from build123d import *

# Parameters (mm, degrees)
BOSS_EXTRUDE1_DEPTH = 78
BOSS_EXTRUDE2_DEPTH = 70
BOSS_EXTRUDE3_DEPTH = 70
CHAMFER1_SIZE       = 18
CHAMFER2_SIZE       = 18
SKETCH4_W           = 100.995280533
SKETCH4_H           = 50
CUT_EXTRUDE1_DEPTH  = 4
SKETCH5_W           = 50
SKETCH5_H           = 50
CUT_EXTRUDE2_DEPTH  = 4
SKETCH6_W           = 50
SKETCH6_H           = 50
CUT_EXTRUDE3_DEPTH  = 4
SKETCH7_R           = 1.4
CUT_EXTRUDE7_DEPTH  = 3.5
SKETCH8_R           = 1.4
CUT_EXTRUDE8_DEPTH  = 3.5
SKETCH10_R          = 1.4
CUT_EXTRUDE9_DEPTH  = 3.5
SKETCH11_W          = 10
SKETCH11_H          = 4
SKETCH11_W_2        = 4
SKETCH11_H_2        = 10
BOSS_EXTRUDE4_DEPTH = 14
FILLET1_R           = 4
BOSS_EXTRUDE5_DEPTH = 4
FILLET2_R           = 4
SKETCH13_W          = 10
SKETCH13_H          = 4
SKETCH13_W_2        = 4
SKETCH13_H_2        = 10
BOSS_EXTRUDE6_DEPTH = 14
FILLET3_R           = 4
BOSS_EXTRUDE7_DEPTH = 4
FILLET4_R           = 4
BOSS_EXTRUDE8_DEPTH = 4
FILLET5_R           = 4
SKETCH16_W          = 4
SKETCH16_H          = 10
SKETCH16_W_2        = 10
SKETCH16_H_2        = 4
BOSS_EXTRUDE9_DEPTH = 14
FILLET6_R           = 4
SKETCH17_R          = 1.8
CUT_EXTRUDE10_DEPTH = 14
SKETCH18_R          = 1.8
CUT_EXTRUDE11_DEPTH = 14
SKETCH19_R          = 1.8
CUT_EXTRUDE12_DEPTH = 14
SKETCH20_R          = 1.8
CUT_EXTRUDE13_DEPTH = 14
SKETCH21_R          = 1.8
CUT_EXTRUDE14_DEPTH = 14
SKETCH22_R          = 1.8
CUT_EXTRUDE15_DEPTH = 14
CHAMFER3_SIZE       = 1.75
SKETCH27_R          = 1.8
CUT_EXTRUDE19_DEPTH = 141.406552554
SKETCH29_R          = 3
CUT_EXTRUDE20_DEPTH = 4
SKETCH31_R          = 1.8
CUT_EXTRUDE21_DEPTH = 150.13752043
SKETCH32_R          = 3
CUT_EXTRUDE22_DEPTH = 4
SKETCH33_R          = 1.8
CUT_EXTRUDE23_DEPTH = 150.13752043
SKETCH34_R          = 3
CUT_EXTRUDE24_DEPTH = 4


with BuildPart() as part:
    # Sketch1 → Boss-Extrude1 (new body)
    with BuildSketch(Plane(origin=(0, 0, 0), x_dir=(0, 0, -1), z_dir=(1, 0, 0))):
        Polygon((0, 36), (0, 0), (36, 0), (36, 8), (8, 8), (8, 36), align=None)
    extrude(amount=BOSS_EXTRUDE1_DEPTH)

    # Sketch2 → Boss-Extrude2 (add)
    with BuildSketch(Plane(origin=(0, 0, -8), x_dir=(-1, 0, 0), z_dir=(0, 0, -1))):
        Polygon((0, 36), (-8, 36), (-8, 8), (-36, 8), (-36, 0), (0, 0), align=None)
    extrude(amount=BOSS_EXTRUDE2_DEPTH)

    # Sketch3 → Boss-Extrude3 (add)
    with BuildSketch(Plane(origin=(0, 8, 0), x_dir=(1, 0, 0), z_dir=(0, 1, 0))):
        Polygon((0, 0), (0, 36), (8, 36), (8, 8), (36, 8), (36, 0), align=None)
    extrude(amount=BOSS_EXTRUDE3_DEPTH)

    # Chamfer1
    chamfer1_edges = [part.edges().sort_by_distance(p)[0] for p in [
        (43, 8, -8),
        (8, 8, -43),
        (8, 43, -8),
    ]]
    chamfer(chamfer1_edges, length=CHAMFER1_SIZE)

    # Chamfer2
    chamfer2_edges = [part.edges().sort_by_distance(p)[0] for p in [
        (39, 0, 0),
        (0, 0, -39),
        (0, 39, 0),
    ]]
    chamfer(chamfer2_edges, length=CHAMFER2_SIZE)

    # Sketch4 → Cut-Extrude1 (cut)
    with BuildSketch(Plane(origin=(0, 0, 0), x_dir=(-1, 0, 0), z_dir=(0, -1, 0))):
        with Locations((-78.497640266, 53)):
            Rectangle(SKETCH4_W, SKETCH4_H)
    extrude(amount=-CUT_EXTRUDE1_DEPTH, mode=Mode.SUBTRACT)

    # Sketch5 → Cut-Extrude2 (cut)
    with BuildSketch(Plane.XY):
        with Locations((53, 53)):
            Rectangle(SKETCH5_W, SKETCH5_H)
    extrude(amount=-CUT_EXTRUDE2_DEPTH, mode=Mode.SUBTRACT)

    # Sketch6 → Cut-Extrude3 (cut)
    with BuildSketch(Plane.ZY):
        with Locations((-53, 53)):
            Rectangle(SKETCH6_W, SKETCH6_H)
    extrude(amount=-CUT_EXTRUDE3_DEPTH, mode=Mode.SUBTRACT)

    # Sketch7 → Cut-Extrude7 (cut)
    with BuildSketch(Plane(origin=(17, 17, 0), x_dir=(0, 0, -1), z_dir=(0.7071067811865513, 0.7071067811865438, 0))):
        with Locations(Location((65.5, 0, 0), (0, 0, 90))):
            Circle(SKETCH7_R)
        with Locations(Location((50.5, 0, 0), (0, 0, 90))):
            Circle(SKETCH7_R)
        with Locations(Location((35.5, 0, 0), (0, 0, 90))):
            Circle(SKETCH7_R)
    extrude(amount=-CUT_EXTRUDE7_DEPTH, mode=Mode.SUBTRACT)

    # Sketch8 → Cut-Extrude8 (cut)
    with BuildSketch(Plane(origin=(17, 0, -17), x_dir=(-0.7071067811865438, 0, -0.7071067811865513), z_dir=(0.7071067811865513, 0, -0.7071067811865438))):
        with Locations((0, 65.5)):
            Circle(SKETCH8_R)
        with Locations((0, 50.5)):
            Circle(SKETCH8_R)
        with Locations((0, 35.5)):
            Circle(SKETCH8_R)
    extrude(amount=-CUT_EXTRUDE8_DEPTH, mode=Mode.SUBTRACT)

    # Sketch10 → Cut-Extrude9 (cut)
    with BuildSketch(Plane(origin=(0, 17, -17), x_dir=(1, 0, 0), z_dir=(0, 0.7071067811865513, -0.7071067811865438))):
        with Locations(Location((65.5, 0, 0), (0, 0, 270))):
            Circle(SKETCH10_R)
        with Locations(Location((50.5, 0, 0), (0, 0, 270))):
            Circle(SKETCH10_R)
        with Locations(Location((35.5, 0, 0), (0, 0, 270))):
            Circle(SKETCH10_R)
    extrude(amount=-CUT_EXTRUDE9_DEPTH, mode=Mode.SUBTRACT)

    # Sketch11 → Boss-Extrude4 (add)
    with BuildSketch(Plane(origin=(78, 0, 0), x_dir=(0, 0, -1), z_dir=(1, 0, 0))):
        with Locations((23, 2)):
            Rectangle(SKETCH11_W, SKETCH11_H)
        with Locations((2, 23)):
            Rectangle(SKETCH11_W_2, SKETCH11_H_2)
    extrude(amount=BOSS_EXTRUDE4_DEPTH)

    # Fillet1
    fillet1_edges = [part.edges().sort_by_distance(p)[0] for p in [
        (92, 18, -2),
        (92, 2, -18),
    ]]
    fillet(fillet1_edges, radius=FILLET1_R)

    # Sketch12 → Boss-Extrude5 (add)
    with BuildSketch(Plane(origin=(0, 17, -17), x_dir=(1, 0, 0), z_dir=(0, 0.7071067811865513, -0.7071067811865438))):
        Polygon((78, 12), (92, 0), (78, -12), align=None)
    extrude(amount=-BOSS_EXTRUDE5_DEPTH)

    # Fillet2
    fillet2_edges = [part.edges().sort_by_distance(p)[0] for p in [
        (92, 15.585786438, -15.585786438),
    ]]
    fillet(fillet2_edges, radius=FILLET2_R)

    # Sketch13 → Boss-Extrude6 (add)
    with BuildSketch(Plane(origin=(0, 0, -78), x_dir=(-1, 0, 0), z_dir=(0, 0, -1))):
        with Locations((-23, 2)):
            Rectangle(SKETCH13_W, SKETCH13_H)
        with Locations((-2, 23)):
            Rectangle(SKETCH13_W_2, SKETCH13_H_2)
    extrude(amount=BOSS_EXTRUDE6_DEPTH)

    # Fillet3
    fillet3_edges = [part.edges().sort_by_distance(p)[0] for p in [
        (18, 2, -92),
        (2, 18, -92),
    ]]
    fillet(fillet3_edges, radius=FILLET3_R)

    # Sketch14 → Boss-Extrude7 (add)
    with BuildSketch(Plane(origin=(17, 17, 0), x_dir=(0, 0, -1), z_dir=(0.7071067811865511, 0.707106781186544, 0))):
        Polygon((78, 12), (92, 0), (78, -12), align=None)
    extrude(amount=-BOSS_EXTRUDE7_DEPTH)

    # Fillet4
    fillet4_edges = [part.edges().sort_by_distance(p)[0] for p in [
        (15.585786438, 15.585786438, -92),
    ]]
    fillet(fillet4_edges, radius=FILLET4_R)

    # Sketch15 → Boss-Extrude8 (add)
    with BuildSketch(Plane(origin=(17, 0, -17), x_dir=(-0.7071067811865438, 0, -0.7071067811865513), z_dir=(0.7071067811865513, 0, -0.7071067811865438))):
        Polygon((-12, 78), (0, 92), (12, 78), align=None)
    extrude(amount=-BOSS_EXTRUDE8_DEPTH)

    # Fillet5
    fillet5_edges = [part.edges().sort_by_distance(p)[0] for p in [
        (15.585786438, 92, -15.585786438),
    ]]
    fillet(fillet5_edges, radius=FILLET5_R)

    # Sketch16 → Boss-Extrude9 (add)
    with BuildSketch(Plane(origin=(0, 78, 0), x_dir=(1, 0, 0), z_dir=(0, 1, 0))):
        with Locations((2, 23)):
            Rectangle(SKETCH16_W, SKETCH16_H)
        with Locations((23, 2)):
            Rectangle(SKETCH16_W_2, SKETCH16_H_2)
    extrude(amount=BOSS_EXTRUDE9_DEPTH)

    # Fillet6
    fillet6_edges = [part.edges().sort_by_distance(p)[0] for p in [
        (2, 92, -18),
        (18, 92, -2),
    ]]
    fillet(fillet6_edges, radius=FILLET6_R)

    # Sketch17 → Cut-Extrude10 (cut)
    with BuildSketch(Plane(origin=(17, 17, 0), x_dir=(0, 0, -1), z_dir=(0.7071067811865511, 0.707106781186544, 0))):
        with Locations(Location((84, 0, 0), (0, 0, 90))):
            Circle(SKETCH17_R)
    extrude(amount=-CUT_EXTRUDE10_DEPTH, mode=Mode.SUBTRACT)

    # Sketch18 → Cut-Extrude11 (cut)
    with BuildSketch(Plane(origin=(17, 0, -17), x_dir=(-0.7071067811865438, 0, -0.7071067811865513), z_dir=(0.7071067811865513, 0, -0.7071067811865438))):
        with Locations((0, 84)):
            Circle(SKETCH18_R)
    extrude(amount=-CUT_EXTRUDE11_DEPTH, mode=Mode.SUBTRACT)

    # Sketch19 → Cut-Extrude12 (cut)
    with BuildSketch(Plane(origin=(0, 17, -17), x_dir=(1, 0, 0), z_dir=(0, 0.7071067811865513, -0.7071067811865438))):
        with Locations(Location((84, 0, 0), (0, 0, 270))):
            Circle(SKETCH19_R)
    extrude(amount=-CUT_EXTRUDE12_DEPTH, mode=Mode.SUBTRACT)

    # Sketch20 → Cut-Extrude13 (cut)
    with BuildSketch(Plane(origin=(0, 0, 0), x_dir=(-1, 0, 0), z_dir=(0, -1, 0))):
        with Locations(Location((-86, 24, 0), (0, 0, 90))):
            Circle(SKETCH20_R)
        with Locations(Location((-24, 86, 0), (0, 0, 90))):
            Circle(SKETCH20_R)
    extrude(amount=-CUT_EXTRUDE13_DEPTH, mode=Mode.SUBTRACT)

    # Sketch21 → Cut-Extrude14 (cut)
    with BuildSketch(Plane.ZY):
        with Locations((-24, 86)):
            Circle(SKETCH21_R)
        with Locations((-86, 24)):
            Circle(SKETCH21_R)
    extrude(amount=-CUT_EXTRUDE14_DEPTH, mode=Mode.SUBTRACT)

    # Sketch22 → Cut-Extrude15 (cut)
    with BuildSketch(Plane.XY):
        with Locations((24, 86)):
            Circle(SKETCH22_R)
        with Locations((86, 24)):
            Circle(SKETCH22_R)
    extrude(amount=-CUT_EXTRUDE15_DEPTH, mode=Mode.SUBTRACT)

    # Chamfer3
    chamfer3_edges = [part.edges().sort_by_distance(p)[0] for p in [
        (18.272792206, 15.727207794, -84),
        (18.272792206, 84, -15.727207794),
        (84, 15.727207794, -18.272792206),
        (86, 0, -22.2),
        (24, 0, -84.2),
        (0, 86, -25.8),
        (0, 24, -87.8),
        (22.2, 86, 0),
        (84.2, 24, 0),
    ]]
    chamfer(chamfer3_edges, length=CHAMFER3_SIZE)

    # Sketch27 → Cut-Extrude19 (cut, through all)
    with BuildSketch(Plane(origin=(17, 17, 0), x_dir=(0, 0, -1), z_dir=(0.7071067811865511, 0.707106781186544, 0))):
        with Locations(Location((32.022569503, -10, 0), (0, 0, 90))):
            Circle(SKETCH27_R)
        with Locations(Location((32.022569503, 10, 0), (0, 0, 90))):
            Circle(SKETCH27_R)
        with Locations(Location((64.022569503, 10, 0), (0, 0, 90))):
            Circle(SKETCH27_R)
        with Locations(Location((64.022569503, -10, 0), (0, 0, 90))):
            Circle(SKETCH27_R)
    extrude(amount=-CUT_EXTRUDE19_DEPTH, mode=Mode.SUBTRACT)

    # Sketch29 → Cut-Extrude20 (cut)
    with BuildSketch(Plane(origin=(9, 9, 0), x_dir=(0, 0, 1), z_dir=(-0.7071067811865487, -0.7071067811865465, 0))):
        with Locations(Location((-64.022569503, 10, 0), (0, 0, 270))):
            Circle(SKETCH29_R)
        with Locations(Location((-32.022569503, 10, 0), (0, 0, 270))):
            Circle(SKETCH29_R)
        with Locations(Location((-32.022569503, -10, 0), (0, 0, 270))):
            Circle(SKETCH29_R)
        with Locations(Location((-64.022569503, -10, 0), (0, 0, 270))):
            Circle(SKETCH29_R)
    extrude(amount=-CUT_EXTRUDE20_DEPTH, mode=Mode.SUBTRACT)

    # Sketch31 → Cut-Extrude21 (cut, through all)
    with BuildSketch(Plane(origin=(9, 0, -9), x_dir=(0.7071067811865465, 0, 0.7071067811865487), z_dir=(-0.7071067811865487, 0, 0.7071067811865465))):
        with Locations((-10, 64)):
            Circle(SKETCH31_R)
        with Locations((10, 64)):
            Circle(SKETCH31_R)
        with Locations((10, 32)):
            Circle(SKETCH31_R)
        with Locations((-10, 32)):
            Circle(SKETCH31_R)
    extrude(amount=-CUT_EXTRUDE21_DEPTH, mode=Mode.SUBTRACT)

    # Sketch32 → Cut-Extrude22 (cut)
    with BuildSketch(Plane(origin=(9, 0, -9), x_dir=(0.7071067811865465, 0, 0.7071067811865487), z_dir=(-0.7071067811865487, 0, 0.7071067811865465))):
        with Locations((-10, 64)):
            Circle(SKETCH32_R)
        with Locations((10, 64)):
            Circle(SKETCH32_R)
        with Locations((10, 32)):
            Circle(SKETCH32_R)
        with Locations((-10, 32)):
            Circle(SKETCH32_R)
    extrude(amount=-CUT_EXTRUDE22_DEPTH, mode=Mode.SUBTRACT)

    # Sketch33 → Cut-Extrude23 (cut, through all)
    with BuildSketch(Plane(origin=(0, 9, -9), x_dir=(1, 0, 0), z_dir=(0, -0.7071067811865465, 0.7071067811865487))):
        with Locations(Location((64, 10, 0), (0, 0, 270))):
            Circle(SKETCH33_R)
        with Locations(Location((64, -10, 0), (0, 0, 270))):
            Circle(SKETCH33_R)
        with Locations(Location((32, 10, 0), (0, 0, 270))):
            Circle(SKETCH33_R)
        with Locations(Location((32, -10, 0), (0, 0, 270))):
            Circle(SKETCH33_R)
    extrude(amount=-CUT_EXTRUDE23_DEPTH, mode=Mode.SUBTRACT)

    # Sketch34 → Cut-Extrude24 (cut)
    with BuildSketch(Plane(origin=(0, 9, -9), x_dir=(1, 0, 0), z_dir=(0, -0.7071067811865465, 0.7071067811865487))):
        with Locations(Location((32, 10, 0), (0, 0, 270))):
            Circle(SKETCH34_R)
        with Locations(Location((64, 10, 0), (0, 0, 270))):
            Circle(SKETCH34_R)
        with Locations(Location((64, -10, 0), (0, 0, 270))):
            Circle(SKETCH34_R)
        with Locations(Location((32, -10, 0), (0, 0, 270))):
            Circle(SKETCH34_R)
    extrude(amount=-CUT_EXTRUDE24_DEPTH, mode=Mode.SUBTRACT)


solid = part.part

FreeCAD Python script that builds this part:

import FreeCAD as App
import Part
import Sketcher
Q = App.Units.Quantity


def edges_at(feature, points):
    """Names of the edges that pass closest to the given points."""
    edges = feature.Shape.Edges
    near = lambda p: min(range(len(edges)), key=lambda i: edges[i].distToShape(Part.Vertex(*p))[0])
    return sorted({f"Edge{near(p) + 1}" for p in points})


def add_polygon(sketch, points):
    """Adds a closed chain of lines whose ends are joined by coincident constraints."""
    first, n = sketch.GeometryCount, len(points)
    for a, b in zip(points, points[1:] + points[:1]):
        sketch.addGeometry(Part.LineSegment(App.Vector(*a, 0), App.Vector(*b, 0)), False)
    for i in range(n):
        sketch.addConstraint(Sketcher.Constraint("Coincident", first + i, 2, first + (i + 1) % n, 1))

doc = App.newDocument("Part")
body = doc.addObject("PartDesign::Body", "Body")

sketch1 = body.newObject("Sketcher::SketchObject", "Sketch")
sketch1.AttachmentSupport = (doc.getObject("YZ_Plane"), [""])
sketch1.MapMode = "FlatFace"
add_polygon(sketch1, [(36, 0), (0, 0), (0, -36), (8, -36), (8, -8), (36, -8)])
sketch1.addConstraint([
    Sketcher.Constraint("Horizontal", 0),
    Sketcher.Constraint("Vertical", 1),
    Sketcher.Constraint("Horizontal", 2),
    Sketcher.Constraint("Vertical", 3),
    Sketcher.Constraint("Horizontal", 4),
    Sketcher.Constraint("Vertical", 5),
    Sketcher.Constraint("Coincident", 0, 2, -1, 1),
    Sketcher.Constraint("Equal", 0, 1),
    Sketcher.Constraint("Equal", 4, 3),
    Sketcher.Constraint("DistanceX", 0, 2, 0, 1, Q("36 mm")),
    Sketcher.Constraint("DistanceX", 2, 1, 2, 2, Q("8 mm")),
])
pad1 = body.newObject("PartDesign::Pad", "Pad")
pad1.Profile = sketch1
pad1.Length = 78

sketch2 = body.newObject("Sketcher::SketchObject", "Sketch001")
sketch2.AttachmentSupport = (doc.getObject("XY_Plane"), [""])
sketch2.MapMode = "FlatFace"
sketch2.AttachmentOffset = App.Placement(App.Vector(0, 0, -8), App.Rotation())
add_polygon(sketch2, [(0, 36), (8, 36), (8, 8), (36, 8), (36, 0), (0, 0)])
sketch2.addConstraint([
    Sketcher.Constraint("Horizontal", 0),
    Sketcher.Constraint("Vertical", 1),
    Sketcher.Constraint("Horizontal", 2),
    Sketcher.Constraint("Vertical", 3),
    Sketcher.Constraint("Horizontal", 4),
    Sketcher.Constraint("Vertical", 5),
    Sketcher.Constraint("Coincident", 4, 2, -1, 1),
    Sketcher.Constraint("Equal", 2, 1),
    Sketcher.Constraint("Equal", 0, 3),
    Sketcher.Constraint("DistanceX", 0, 1, 0, 2, Q("8 mm")),
    Sketcher.Constraint("DistanceX", 2, 1, 2, 2, Q("28 mm")),
])
pad2 = body.newObject("PartDesign::Pad", "Pad001")
pad2.Profile = sketch2
pad2.Length = 70
pad2.Reversed = True

sketch3 = body.newObject("Sketcher::SketchObject", "Sketch002")
sketch3.AttachmentSupport = (doc.getObject("XZ_Plane"), [""])
sketch3.MapMode = "FlatFace"
sketch3.AttachmentOffset = App.Placement(App.Vector(0, 0, -8), App.Rotation())
add_polygon(sketch3, [(0, -36), (0, 0), (36, 0), (36, -8), (8, -8), (8, -36)])
sketch3.addConstraint([
    Sketcher.Constraint("Vertical", 0),
    Sketcher.Constraint("Horizontal", 1),
    Sketcher.Constraint("Vertical", 2),
    Sketcher.Constraint("Horizontal", 3),
    Sketcher.Constraint("Vertical", 4),
    Sketcher.Constraint("Horizontal", 5),
    Sketcher.Constraint("Coincident", 0, 2, -1, 1),
    Sketcher.Constraint("Equal", 1, 0),
    Sketcher.Constraint("Equal", 5, 2),
    Sketcher.Constraint("DistanceX", 1, 1, 1, 2, Q("36 mm")),
    Sketcher.Constraint("DistanceX", 3, 2, 3, 1, Q("28 mm")),
])
pad3 = body.newObject("PartDesign::Pad", "Pad002")
pad3.Profile = sketch3
pad3.Length = 70
pad3.Reversed = True
doc.recompute()

chamfer = body.newObject("PartDesign::Chamfer", "Chamfer")
chamfer.Base = (pad3, edges_at(pad3, [(43, 8, -8), (8, 8, -43), (8, 43, -8)]))
chamfer.Size = 18
doc.recompute()

chamfer2 = body.newObject("PartDesign::Chamfer", "Chamfer001")
chamfer2.Base = (chamfer, edges_at(chamfer, [(39, 0, 0), (0, 0, -39), (0, 39, 0)]))
chamfer2.Size = 18

sketch4 = body.newObject("Sketcher::SketchObject", "Sketch003")
sketch4.AttachmentSupport = (doc.getObject("XZ_Plane"), [""])
sketch4.MapMode = "FlatFace"
add_polygon(sketch4, [(129, -78), (129, -28), (28, -28), (28, -78)])
sketch4.addConstraint([
    Sketcher.Constraint("Vertical", 0),
    Sketcher.Constraint("Horizontal", 1),
    Sketcher.Constraint("Vertical", 2),
    Sketcher.Constraint("Horizontal", 3),
    Sketcher.Constraint("DistanceY", 0, 1, 0, 2, Q("50 mm")),
    Sketcher.Constraint("DistanceY", 0, 2, -1, 1, Q("28 mm")),
    Sketcher.Constraint("DistanceX", -1, 1, 1, 2, Q("28 mm")),
    Sketcher.Constraint("DistanceX", 1, 2, 1, 1, Q("100.995281 mm")),
])
pocket1 = body.newObject("PartDesign::Pocket", "Pocket")
pocket1.Profile = sketch4
pocket1.Length = 4

sketch5 = body.newObject("Sketcher::SketchObject", "Sketch004")
sketch5.AttachmentSupport = (doc.getObject("XY_Plane"), [""])
sketch5.MapMode = "FlatFace"
add_polygon(sketch5, [(28, 78), (28, 28), (78, 28), (78, 78)])
sketch5.addConstraint([
    Sketcher.Constraint("Vertical", 0),
    Sketcher.Constraint("Horizontal", 1),
    Sketcher.Constraint("Vertical", 2),
    Sketcher.Constraint("Horizontal", 3),
    Sketcher.Constraint("Equal", 3, 0),
    Sketcher.Constraint("DistanceX", 1, 1, 1, 2, Q("50 mm")),
    Sketcher.Constraint("DistanceX", -1, 1, 0, 2, Q("28 mm")),
    Sketcher.Constraint("DistanceY", -1, 1, 0, 2, Q("28 mm")),
])
pocket2 = body.newObject("PartDesign::Pocket", "Pocket001")
pocket2.Profile = sketch5
pocket2.Length = 4

sketch6 = body.newObject("Sketcher::SketchObject", "Sketch005")
sketch6.AttachmentSupport = (doc.getObject("YZ_Plane"), [""])
sketch6.MapMode = "FlatFace"
add_polygon(sketch6, [(78, -78), (28, -78), (28, -28), (78, -28)])
sketch6.addConstraint([
    Sketcher.Constraint("Horizontal", 0),
    Sketcher.Constraint("Vertical", 1),
    Sketcher.Constraint("Horizontal", 2),
    Sketcher.Constraint("Vertical", 3),
    Sketcher.Constraint("Equal", 2, 1),
    Sketcher.Constraint("DistanceX", 0, 2, 0, 1, Q("50 mm")),
    Sketcher.Constraint("DistanceX", -1, 1, 0, 2, Q("28 mm")),
    Sketcher.Constraint("DistanceY", 0, 2, -1, 1, Q("78 mm")),
])
pocket3 = body.newObject("PartDesign::Pocket", "Pocket002")
pocket3.Profile = sketch6
pocket3.Length = 4
pocket3.Reversed = True

sketch7 = body.newObject("Sketcher::SketchObject", "Sketch006")
sketch7.Placement = App.Placement(App.Vector(17, 17, 0), App.Rotation(App.Vector(0, 0, -1), App.Vector(-0.707106781, 0.707106781, 0), App.Vector(0.707106781, 0.707106781, 0), "ZXY"))
sketch7.addGeometry([
    Part.Circle(App.Vector(65.5, 0, 0), App.Vector(0, 0, 1), 1.4),
    Part.Circle(App.Vector(50.5, 0, 0), App.Vector(0, 0, 1), 1.4),
    Part.Circle(App.Vector(35.5, 0, 0), App.Vector(0, 0, 1), 1.4),
], False)
sketch7.addConstraint([
    Sketcher.Constraint("Equal", 0, 1),
    Sketcher.Constraint("Equal", 1, 2),
    Sketcher.Constraint("PointOnObject", 0, 3, -1),
    Sketcher.Constraint("PointOnObject", 1, 3, -1),
    Sketcher.Constraint("PointOnObject", 2, 3, -1),
    Sketcher.Constraint("Diameter", 0, Q("2.8 mm")),
    Sketcher.Constraint("DistanceX", 1, 3, 0, 3, Q("15 mm")),
    Sketcher.Constraint("DistanceX", 2, 3, 1, 3, Q("15 mm")),
    Sketcher.Constraint("DistanceX", -1, 1, 0, 3, Q("65.5 mm")),
])
pocket4 = body.newObject("PartDesign::Pocket", "Pocket003")
pocket4.Profile = sketch7
pocket4.Length = 3.5

sketch8 = body.newObject("Sketcher::SketchObject", "Sketch007")
sketch8.Placement = App.Placement(App.Vector(17, 0, -17), App.Rotation(App.Vector(-0.707106781, 0, -0.707106781), App.Vector(0, 0.999999999, 0), App.Vector(0.707106781, 0, -0.707106781), "ZXY"))
sketch8.addGeometry([
    Part.Circle(App.Vector(0, 65.5, 0), App.Vector(0, 0, 1), 1.4),
    Part.Circle(App.Vector(0, 50.5, 0), App.Vector(0, 0, 1), 1.4),
    Part.Circle(App.Vector(0, 35.5, 0), App.Vector(0, 0, 1), 1.4),
], False)
sketch8.addConstraint([
    Sketcher.Constraint("Equal", 0, 1),
    Sketcher.Constraint("Equal", 1, 2),
    Sketcher.Constraint("PointOnObject", 0, 3, -2),
    Sketcher.Constraint("PointOnObject", 1, 3, -2),
    Sketcher.Constraint("PointOnObject", 2, 3, -2),
    Sketcher.Constraint("Diameter", 0, Q("2.8 mm")),
    Sketcher.Constraint("DistanceY", 1, 3, 0, 3, Q("15 mm")),
    Sketcher.Constraint("DistanceY", 2, 3, 1, 3, Q("15 mm")),
    Sketcher.Constraint("DistanceY", -1, 1, 0, 3, Q("65.5 mm")),
])
pocket5 = body.newObject("PartDesign::Pocket", "Pocket004")
pocket5.Profile = sketch8
pocket5.Length = 3.5

sketch9 = body.newObject("Sketcher::SketchObject", "Sketch008")
sketch9.Placement = App.Placement(App.Vector(0, 17, -17), App.Rotation(App.Vector(1, 0, 0), App.Vector(0, -0.707106781, -0.707106781), App.Vector(0, 0.707106781, -0.707106781), "ZXY"))
sketch9.addGeometry([
    Part.Circle(App.Vector(65.5, 0, 0), App.Vector(0, 0, 1), 1.4),
    Part.Circle(App.Vector(50.5, 0, 0), App.Vector(0, 0, 1), 1.4),
    Part.Circle(App.Vector(35.5, 0, 0), App.Vector(0, 0, 1), 1.4),
], False)
sketch9.addConstraint([
    Sketcher.Constraint("Equal", 0, 1),
    Sketcher.Constraint("Equal", 1, 2),
    Sketcher.Constraint("PointOnObject", 0, 3, -1),
    Sketcher.Constraint("PointOnObject", 1, 3, -1),
    Sketcher.Constraint("PointOnObject", 2, 3, -1),
    Sketcher.Constraint("Diameter", 0, Q("2.8 mm")),
    Sketcher.Constraint("DistanceX", 1, 3, 0, 3, Q("15 mm")),
    Sketcher.Constraint("DistanceX", 2, 3, 1, 3, Q("15 mm")),
    Sketcher.Constraint("DistanceX", -1, 1, 0, 3, Q("65.5 mm")),
])
pocket6 = body.newObject("PartDesign::Pocket", "Pocket005")
pocket6.Profile = sketch9
pocket6.Length = 3.5

sketch10 = body.newObject("Sketcher::SketchObject", "Sketch009")
sketch10.AttachmentSupport = (doc.getObject("YZ_Plane"), [""])
sketch10.MapMode = "FlatFace"
sketch10.AttachmentOffset = App.Placement(App.Vector(0, 0, 78), App.Rotation())
add_polygon(sketch10, [(4, -18), (0, -18), (0, -28), (4, -28)])
add_polygon(sketch10, [(28, 0), (18, 0), (18, -4), (28, -4)])
sketch10.addConstraint([
    Sketcher.Constraint("Horizontal", 0),
    Sketcher.Constraint("Vertical", 1),
    Sketcher.Constraint("Horizontal", 2),
    Sketcher.Constraint("Vertical", 3),
    Sketcher.Constraint("Horizontal", 4),
    Sketcher.Constraint("Vertical", 5),
    Sketcher.Constraint("Horizontal", 6),
    Sketcher.Constraint("Vertical", 7),
    Sketcher.Constraint("PointOnObject", 0, 2, -2),
    Sketcher.Constraint("PointOnObject", 4, 2, -1),
    Sketcher.Constraint("Equal", 6, 1),
    Sketcher.Constraint("Equal", 2, 5),
    Sketcher.Constraint("DistanceX", 0, 2, 0, 1, Q("4 mm")),
    Sketcher.Constraint("DistanceX", 4, 2, 4, 1, Q("10 mm")),
    Sketcher.Constraint("DistanceY", 0, 2, -1, 1, Q("18 mm")),
    Sketcher.Constraint("DistanceX", -1, 1, 4, 2, Q("18 mm")),
])
pad4 = body.newObject("PartDesign::Pad", "Pad003")
pad4.Profile = sketch10
pad4.Length = 14
doc.recompute()

fillet = body.newObject("PartDesign::Fillet", "Fillet")
fillet.Base = (pad4, edges_at(pad4, [(92, 18, -2), (92, 2, -18)]))
fillet.Radius = 4

sketch11 = body.newObject("Sketcher::SketchObject", "Sketch010")
sketch11.Placement = App.Placement(App.Vector(0, 17, -17), App.Rotation(App.Vector(1, 0, 0), App.Vector(0, -0.707106781, -0.707106781), App.Vector(0, 0.707106781, -0.707106781), "ZXY"))
add_polygon(sketch11, [(92, 0), (78, 12), (78, -12)])
sketch11.addConstraint([
    Sketcher.Constraint("Vertical", 1),
    Sketcher.Constraint("PointOnObject", 2, 2, -1),
    Sketcher.Constraint("Equal", 0, 2),
    Sketcher.Constraint("DistanceY", 1, 2, 1, 1, Q("24 mm")),
    Sketcher.Constraint("DistanceX", -1, 1, 0, 2, Q("78 mm")),
    Sketcher.Constraint("DistanceX", -1, 1, 2, 2, Q("92 mm")),
])
pad5 = body.newObject("PartDesign::Pad", "Pad004")
pad5.Profile = sketch11
pad5.Length = 4
pad5.Reversed = True
doc.recompute()

fillet2 = body.newObject("PartDesign::Fillet", "Fillet001")
fillet2.Base = (pad5, edges_at(pad5, [(92, 15.586, -15.586)]))
fillet2.Radius = 4

sketch12 = body.newObject("Sketcher::SketchObject", "Sketch011")
sketch12.AttachmentSupport = (doc.getObject("XY_Plane"), [""])
sketch12.MapMode = "FlatFace"
sketch12.AttachmentOffset = App.Placement(App.Vector(0, 0, -78), App.Rotation())
add_polygon(sketch12, [(28, 4), (28, 0), (18, 0), (18, 4)])
add_polygon(sketch12, [(4, 28), (4, 18), (0, 18), (0, 28)])
sketch12.addConstraint([
    Sketcher.Constraint("Vertical", 0),
    Sketcher.Constraint("Horizontal", 1),
    Sketcher.Constraint("Vertical", 2),
    Sketcher.Constraint("Horizontal", 3),
    Sketcher.Constraint("Vertical", 4),
    Sketcher.Constraint("Horizontal", 5),
    Sketcher.Constraint("Vertical", 6),
    Sketcher.Constraint("Horizontal", 7),
    Sketcher.Constraint("PointOnObject", 0, 2, -1),
    Sketcher.Constraint("PointOnObject", 5, 2, -2),
    Sketcher.Constraint("Equal", 7, 0),
    Sketcher.Constraint("Equal", 3, 4),
    Sketcher.Constraint("DistanceX", 1, 2, 1, 1, Q("10 mm")),
    Sketcher.Constraint("DistanceX", 5, 2, 5, 1, Q("4 mm")),
    Sketcher.Constraint("DistanceX", -1, 1, 0, 2, Q("28 mm")),
    Sketcher.Constraint("DistanceY", -1, 1, 4, 2, Q("18 mm")),
])
pad6 = body.newObject("PartDesign::Pad", "Pad005")
pad6.Profile = sketch12
pad6.Length = 14
pad6.Reversed = True
doc.recompute()

fillet3 = body.newObject("PartDesign::Fillet", "Fillet002")
fillet3.Base = (pad6, edges_at(pad6, [(18, 2, -92), (2, 18, -92)]))
fillet3.Radius = 4

sketch13 = body.newObject("Sketcher::SketchObject", "Sketch012")
sketch13.Placement = App.Placement(App.Vector(17, 17, 0), App.Rotation(App.Vector(0, 0, -1), App.Vector(-0.707106781, 0.707106781, 0), App.Vector(0.707106781, 0.707106781, 0), "ZXY"))
add_polygon(sketch13, [(92, 0), (78, 12), (78, -12)])
sketch13.addConstraint([
    Sketcher.Constraint("Vertical", 1),
    Sketcher.Constraint("PointOnObject", 2, 2, -1),
    Sketcher.Constraint("Equal", 0, 2),
    Sketcher.Constraint("DistanceY", 1, 2, 1, 1, Q("24 mm")),
    Sketcher.Constraint("DistanceX", -1, 1, 0, 2, Q("78 mm")),
    Sketcher.Constraint("DistanceX", -1, 1, 2, 2, Q("92 mm")),
])
pad7 = body.newObject("PartDesign::Pad", "Pad006")
pad7.Profile = sketch13
pad7.Length = 4
pad7.Reversed = True
doc.recompute()

fillet4 = body.newObject("PartDesign::Fillet", "Fillet003")
fillet4.Base = (pad7, edges_at(pad7, [(15.586, 15.586, -92)]))
fillet4.Radius = 4

sketch14 = body.newObject("Sketcher::SketchObject", "Sketch013")
sketch14.Placement = App.Placement(App.Vector(17, 0, -17), App.Rotation(App.Vector(-0.707106781, 0, -0.707106781), App.Vector(0, 0.999999999, 0), App.Vector(0.707106781, 0, -0.707106781), "ZXY"))
add_polygon(sketch14, [(0, 92), (-12, 78), (12, 78)])
sketch14.addConstraint([
    Sketcher.Constraint("Horizontal", 1),
    Sketcher.Constraint("PointOnObject", 2, 2, -2),
    Sketcher.Constraint("Equal", 0, 2),
    Sketcher.Constraint("DistanceX", 1, 1, 1, 2, Q("24 mm")),
    Sketcher.Constraint("DistanceY", -1, 1, 0, 2, Q("78 mm")),
    Sketcher.Constraint("DistanceY", -1, 1, 2, 2, Q("92 mm")),
])
pad8 = body.newObject("PartDesign::Pad", "Pad007")
pad8.Profile = sketch14
pad8.Length = 4
pad8.Reversed = True
doc.recompute()

fillet5 = body.newObject("PartDesign::Fillet", "Fillet004")
fillet5.Base = (pad8, edges_at(pad8, [(15.586, 92, -15.586)]))
fillet5.Radius = 4

sketch15 = body.newObject("Sketcher::SketchObject", "Sketch014")
sketch15.AttachmentSupport = (doc.getObject("XZ_Plane"), [""])
sketch15.MapMode = "FlatFace"
sketch15.AttachmentOffset = App.Placement(App.Vector(0, 0, -78), App.Rotation())
add_polygon(sketch15, [(0, -28), (0, -18), (4, -18), (4, -28)])
add_polygon(sketch15, [(18, -4), (18, 0), (28, 0), (28, -4)])
sketch15.addConstraint([
    Sketcher.Constraint("Vertical", 0),
    Sketcher.Constraint("Horizontal", 1),
    Sketcher.Constraint("Vertical", 2),
    Sketcher.Constraint("Horizontal", 3),
    Sketcher.Constraint("Vertical", 4),
    Sketcher.Constraint("Horizontal", 5),
    Sketcher.Constraint("Vertical", 6),
    Sketcher.Constraint("Horizontal", 7),
    Sketcher.Constraint("PointOnObject", 0, 2, -2),
    Sketcher.Constraint("PointOnObject", 4, 2, -1),
    Sketcher.Constraint("Equal", 7, 0),
    Sketcher.Constraint("Equal", 3, 4),
    Sketcher.Constraint("DistanceX", 1, 1, 1, 2, Q("4 mm")),
    Sketcher.Constraint("DistanceX", 5, 1, 5, 2, Q("10 mm")),
    Sketcher.Constraint("DistanceY", 0, 2, -1, 1, Q("18 mm")),
    Sketcher.Constraint("DistanceX", -1, 1, 4, 2, Q("18 mm")),
])
pad9 = body.newObject("PartDesign::Pad", "Pad008")
pad9.Profile = sketch15
pad9.Length = 14
pad9.Reversed = True
doc.recompute()

fillet6 = body.newObject("PartDesign::Fillet", "Fillet005")
fillet6.Base = (pad9, edges_at(pad9, [(2, 92, -18), (18, 92, -2)]))
fillet6.Radius = 4

sketch16 = body.newObject("Sketcher::SketchObject", "Sketch015")
sketch16.Placement = App.Placement(App.Vector(17, 17, 0), App.Rotation(App.Vector(0, 0, -1), App.Vector(-0.707106781, 0.707106781, 0), App.Vector(0.707106781, 0.707106781, 0), "ZXY"))
sketch16.addGeometry(Part.Circle(App.Vector(84, 0, 0), App.Vector(0, 0, 1), 1.8), False)
sketch16.addConstraint([
    Sketcher.Constraint("PointOnObject", 0, 3, -1),
    Sketcher.Constraint("Diameter", 0, Q("3.6 mm")),
    Sketcher.Constraint("DistanceX", -1, 1, 0, 3, Q("84 mm")),
])
pocket7 = body.newObject("PartDesign::Pocket", "Pocket006")
pocket7.Profile = sketch16
pocket7.Length = 14

sketch17 = body.newObject("Sketcher::SketchObject", "Sketch016")
sketch17.Placement = App.Placement(App.Vector(17, 0, -17), App.Rotation(App.Vector(-0.707106781, 0, -0.707106781), App.Vector(0, 0.999999999, 0), App.Vector(0.707106781, 0, -0.707106781), "ZXY"))
sketch17.addGeometry(Part.Circle(App.Vector(0, 84, 0), App.Vector(0, 0, 1), 1.8), False)
sketch17.addConstraint([
    Sketcher.Constraint("PointOnObject", 0, 3, -2),
    Sketcher.Constraint("Diameter", 0, Q("3.6 mm")),
    Sketcher.Constraint("DistanceY", -1, 1, 0, 3, Q("84 mm")),
])
pocket8 = body.newObject("PartDesign::Pocket", "Pocket007")
pocket8.Profile = sketch17
pocket8.Length = 14

sketch18 = body.newObject("Sketcher::SketchObject", "Sketch017")
sketch18.Placement = App.Placement(App.Vector(0, 17, -17), App.Rotation(App.Vector(1, 0, 0), App.Vector(0, -0.707106781, -0.707106781), App.Vector(0, 0.707106781, -0.707106781), "ZXY"))
sketch18.addGeometry(Part.Circle(App.Vector(84, 0, 0), App.Vector(0, 0, 1), 1.8), False)
sketch18.addConstraint([
    Sketcher.Constraint("PointOnObject", 0, 3, -1),
    Sketcher.Constraint("Diameter", 0, Q("3.6 mm")),
    Sketcher.Constraint("DistanceX", -1, 1, 0, 3, Q("84 mm")),
])
pocket9 = body.newObject("PartDesign::Pocket", "Pocket008")
pocket9.Profile = sketch18
pocket9.Length = 14

sketch19 = body.newObject("Sketcher::SketchObject", "Sketch018")
sketch19.AttachmentSupport = (doc.getObject("XZ_Plane"), [""])
sketch19.MapMode = "FlatFace"
sketch19.addGeometry([
    Part.Circle(App.Vector(86, -24, 0), App.Vector(0, 0, 1), 1.8),
    Part.Circle(App.Vector(24, -86, 0), App.Vector(0, 0, 1), 1.8),
], False)
sketch19.addConstraint([
    Sketcher.Constraint("Equal", 0, 1),
    Sketcher.Constraint("Diameter", 0, Q("3.6 mm")),
    Sketcher.Constraint("DistanceX", -1, 1, 0, 3, Q("86 mm")),
    Sketcher.Constraint("DistanceY", 0, 3, -1, 1, Q("24 mm")),
    Sketcher.Constraint("DistanceX", -1, 1, 1, 3, Q("24 mm")),
    Sketcher.Constraint("DistanceY", 1, 3, -1, 1, Q("86 mm")),
])
pocket10 = body.newObject("PartDesign::Pocket", "Pocket009")
pocket10.Profile = sketch19
pocket10.Length = 14

sketch20 = body.newObject("Sketcher::SketchObject", "Sketch019")
sketch20.AttachmentSupport = (doc.getObject("YZ_Plane"), [""])
sketch20.MapMode = "FlatFace"
sketch20.addGeometry([
    Part.Circle(App.Vector(86, -24, 0), App.Vector(0, 0, 1), 1.8),
    Part.Circle(App.Vector(24, -86, 0), App.Vector(0, 0, 1), 1.8),
], False)
sketch20.addConstraint([
    Sketcher.Constraint("Equal", 0, 1),
    Sketcher.Constraint("Diameter", 0, Q("3.6 mm")),
    Sketcher.Constraint("DistanceX", -1, 1, 0, 3, Q("86 mm")),
    Sketcher.Constraint("DistanceY", 0, 3, -1, 1, Q("24 mm")),
    Sketcher.Constraint("DistanceX", -1, 1, 1, 3, Q("24 mm")),
    Sketcher.Constraint("DistanceY", 1, 3, -1, 1, Q("86 mm")),
])
pocket11 = body.newObject("PartDesign::Pocket", "Pocket010")
pocket11.Profile = sketch20
pocket11.Length = 14
pocket11.Reversed = True

sketch21 = body.newObject("Sketcher::SketchObject", "Sketch020")
sketch21.AttachmentSupport = (doc.getObject("XY_Plane"), [""])
sketch21.MapMode = "FlatFace"
sketch21.addGeometry([
    Part.Circle(App.Vector(24, 86, 0), App.Vector(0, 0, 1), 1.8),
    Part.Circle(App.Vector(86, 24, 0), App.Vector(0, 0, 1), 1.8),
], False)
sketch21.addConstraint([
    Sketcher.Constraint("Equal", 0, 1),
    Sketcher.Constraint("Diameter", 0, Q("3.6 mm")),
    Sketcher.Constraint("DistanceX", -1, 1, 0, 3, Q("24 mm")),
    Sketcher.Constraint("DistanceY", -1, 1, 0, 3, Q("86 mm")),
    Sketcher.Constraint("DistanceX", -1, 1, 1, 3, Q("86 mm")),
    Sketcher.Constraint("DistanceY", -1, 1, 1, 3, Q("24 mm")),
])
pocket12 = body.newObject("PartDesign::Pocket", "Pocket011")
pocket12.Profile = sketch21
pocket12.Length = 14
doc.recompute()

chamfer3 = body.newObject("PartDesign::Chamfer", "Chamfer002")
chamfer3.Base = (pocket12, edges_at(pocket12, [
    (18.273, 15.727, -84),
    (18.273, 84, -15.727),
    (84, 15.727, -18.273),
    (86, 0, -22.2),
    (24, 0, -84.2),
    (0, 86, -25.8),
    (0, 24, -87.8),
    (22.2, 86, 0),
    (84.2, 24, 0),
]))
chamfer3.Size = 1.75

sketch22 = body.newObject("Sketcher::SketchObject", "Sketch021")
sketch22.Placement = App.Placement(App.Vector(17, 17, 0), App.Rotation(App.Vector(0, 0, -1), App.Vector(-0.707106781, 0.707106781, 0), App.Vector(0.707106781, 0.707106781, 0), "ZXY"))
sketch22.addGeometry([
    Part.Circle(App.Vector(32, -10, 0), App.Vector(0, 0, 1), 1.8),
    Part.Circle(App.Vector(32, 10, 0), App.Vector(0, 0, 1), 1.8),
    Part.Circle(App.Vector(64, 10, 0), App.Vector(0, 0, 1), 1.8),
    Part.Circle(App.Vector(64, -10, 0), App.Vector(0, 0, 1), 1.8),
], False)
sketch22.addConstraint([
    Sketcher.Constraint("Equal", 0, 1),
    Sketcher.Constraint("Equal", 1, 2),
    Sketcher.Constraint("Equal", 2, 3),
    Sketcher.Constraint("Symmetric", 0, 3, 1, 3, -1),
    Sketcher.Constraint("Symmetric", 2, 3, 3, 3, -1),
    Sketcher.Constraint("Horizontal", 1, 3, 2, 3),
    Sketcher.Constraint("Diameter", 0, Q("3.6 mm")),
    Sketcher.Constraint("DistanceY", 0, 3, -1, 1, Q("10 mm")),
    Sketcher.Constraint("DistanceX", 1, 3, 2, 3, Q("32 mm")),
    Sketcher.Constraint("DistanceX", -1, 1, 0, 3, Q("32.02257 mm")),
])
pocket13 = body.newObject("PartDesign::Pocket", "Pocket012")
pocket13.Profile = sketch22
pocket13.Type = "ThroughAll"

sketch23 = body.newObject("Sketcher::SketchObject", "Sketch022")
sketch23.Placement = App.Placement(App.Vector(9, 9, 0), App.Rotation(App.Vector(0, 0, 1), App.Vector(-0.707106781, 0.707106781, 0), App.Vector(-0.707106781, -0.707106781, 0), "ZXY"))
sketch23.addGeometry([
    Part.Circle(App.Vector(-64, 10, 0), App.Vector(0, 0, 1), 3),
    Part.Circle(App.Vector(-32, 10, 0), App.Vector(0, 0, 1), 3),
    Part.Circle(App.Vector(-32, -10, 0), App.Vector(0, 0, 1), 3),
    Part.Circle(App.Vector(-64, -10, 0), App.Vector(0, 0, 1), 3),
], False)
sketch23.addConstraint([
    Sketcher.Constraint("Equal", 0, 1),
    Sketcher.Constraint("Equal", 1, 2),
    Sketcher.Constraint("Equal", 2, 3),
    Sketcher.Constraint("Symmetric", 1, 3, 2, 3, -1),
    Sketcher.Constraint("Symmetric", 0, 3, 3, 3, -1),
    Sketcher.Constraint("Horizontal", 0, 3, 1, 3),
    Sketcher.Constraint("Diameter", 0, Q("6 mm")),
    Sketcher.Constraint("DistanceY", -1, 1, 0, 3, Q("10 mm")),
    Sketcher.Constraint("DistanceX", 0, 3, 1, 3, Q("32 mm")),
    Sketcher.Constraint("DistanceX", 0, 3, -1, 1, Q("64.02257 mm")),
])
pocket14 = body.newObject("PartDesign::Pocket", "Pocket013")
pocket14.Profile = sketch23
pocket14.Length = 4

sketch24 = body.newObject("Sketcher::SketchObject", "Sketch023")
sketch24.Placement = App.Placement(App.Vector(9, 0, -9), App.Rotation(App.Vector(0.707106781, 0, 0.707106781), App.Vector(0, 0.999999999, 0), App.Vector(-0.707106781, 0, 0.707106781), "ZXY"))
sketch24.addGeometry([
    Part.Circle(App.Vector(-10, 64, 0), App.Vector(0, 0, 1), 1.8),
    Part.Circle(App.Vector(10, 64, 0), App.Vector(0, 0, 1), 1.8),
    Part.Circle(App.Vector(10, 32, 0), App.Vector(0, 0, 1), 1.8),
    Part.Circle(App.Vector(-10, 32, 0), App.Vector(0, 0, 1), 1.8),
], False)
sketch24.addConstraint([
    Sketcher.Constraint("Equal", 0, 1),
    Sketcher.Constraint("Equal", 1, 2),
    Sketcher.Constraint("Equal", 2, 3),
    Sketcher.Constraint("Symmetric", 0, 3, 1, 3, -2),
    Sketcher.Constraint("Symmetric", 2, 3, 3, 3, -2),
    Sketcher.Constraint("Vertical", 1, 3, 2, 3),
    Sketcher.Constraint("Diameter", 0, Q("3.6 mm")),
    Sketcher.Constraint("DistanceX", 0, 3, -1, 1, Q("10 mm")),
    Sketcher.Constraint("DistanceY", -1, 1, 0, 3, Q("64 mm")),
    Sketcher.Constraint("DistanceY", -1, 1, 2, 3, Q("32 mm")),
])
pocket15 = body.newObject("PartDesign::Pocket", "Pocket014")
pocket15.Profile = sketch24
pocket15.Type = "ThroughAll"

sketch25 = body.newObject("Sketcher::SketchObject", "Sketch024")
sketch25.Placement = App.Placement(App.Vector(9, 0, -9), App.Rotation(App.Vector(0.707106781, 0, 0.707106781), App.Vector(0, 0.999999999, 0), App.Vector(-0.707106781, 0, 0.707106781), "ZXY"))
sketch25.addGeometry([
    Part.Circle(App.Vector(-10, 64, 0), App.Vector(0, 0, 1), 3),
    Part.Circle(App.Vector(10, 64, 0), App.Vector(0, 0, 1), 3),
    Part.Circle(App.Vector(10, 32, 0), App.Vector(0, 0, 1), 3),
    Part.Circle(App.Vector(-10, 32, 0), App.Vector(0, 0, 1), 3),
], False)
sketch25.addConstraint([
    Sketcher.Constraint("Equal", 0, 1),
    Sketcher.Constraint("Equal", 1, 2),
    Sketcher.Constraint("Equal", 2, 3),
    Sketcher.Constraint("Symmetric", 0, 3, 1, 3, -2),
    Sketcher.Constraint("Symmetric", 2, 3, 3, 3, -2),
    Sketcher.Constraint("Vertical", 1, 3, 2, 3),
    Sketcher.Constraint("Diameter", 0, Q("6 mm")),
    Sketcher.Constraint("DistanceX", 0, 3, -1, 1, Q("10 mm")),
    Sketcher.Constraint("DistanceY", -1, 1, 0, 3, Q("64 mm")),
    Sketcher.Constraint("DistanceY", -1, 1, 2, 3, Q("32 mm")),
])
pocket16 = body.newObject("PartDesign::Pocket", "Pocket015")
pocket16.Profile = sketch25
pocket16.Length = 4

sketch26 = body.newObject("Sketcher::SketchObject", "Sketch025")
sketch26.Placement = App.Placement(App.Vector(0, 9, -9), App.Rotation(App.Vector(1, 0, 0), App.Vector(0, 0.707106781, 0.707106781), App.Vector(0, -0.707106781, 0.707106781), "ZXY"))
sketch26.addGeometry([
    Part.Circle(App.Vector(64, 10, 0), App.Vector(0, 0, 1), 1.8),
    Part.Circle(App.Vector(64, -10, 0), App.Vector(0, 0, 1), 1.8),
    Part.Circle(App.Vector(32, 10, 0), App.Vector(0, 0, 1), 1.8),
    Part.Circle(App.Vector(32, -10, 0), App.Vector(0, 0, 1), 1.8),
], False)
sketch26.addConstraint([
    Sketcher.Constraint("Equal", 0, 1),
    Sketcher.Constraint("Equal", 1, 2),
    Sketcher.Constraint("Equal", 2, 3),
    Sketcher.Constraint("Symmetric", 0, 3, 1, 3, -1),
    Sketcher.Constraint("Symmetric", 2, 3, 3, 3, -1),
    Sketcher.Constraint("Horizontal", 0, 3, 2, 3),
    Sketcher.Constraint("Diameter", 0, Q("3.6 mm")),
    Sketcher.Constraint("DistanceX", -1, 1, 0, 3, Q("64 mm")),
    Sketcher.Constraint("DistanceY", -1, 1, 0, 3, Q("10 mm")),
    Sketcher.Constraint("DistanceX", -1, 1, 2, 3, Q("32 mm")),
])
pocket17 = body.newObject("PartDesign::Pocket", "Pocket016")
pocket17.Profile = sketch26
pocket17.Type = "ThroughAll"

sketch27 = body.newObject("Sketcher::SketchObject", "Sketch026")
sketch27.Placement = App.Placement(App.Vector(0, 9, -9), App.Rotation(App.Vector(1, 0, 0), App.Vector(0, 0.707106781, 0.707106781), App.Vector(0, -0.707106781, 0.707106781), "ZXY"))
sketch27.addGeometry([
    Part.Circle(App.Vector(32, 10, 0), App.Vector(0, 0, 1), 3),
    Part.Circle(App.Vector(64, 10, 0), App.Vector(0, 0, 1), 3),
    Part.Circle(App.Vector(64, -10, 0), App.Vector(0, 0, 1), 3),
    Part.Circle(App.Vector(32, -10, 0), App.Vector(0, 0, 1), 3),
], False)
sketch27.addConstraint([
    Sketcher.Constraint("Equal", 0, 1),
    Sketcher.Constraint("Equal", 1, 2),
    Sketcher.Constraint("Equal", 2, 3),
    Sketcher.Constraint("Symmetric", 1, 3, 2, 3, -1),
    Sketcher.Constraint("Symmetric", 0, 3, 3, 3, -1),
    Sketcher.Constraint("Horizontal", 0, 3, 1, 3),
    Sketcher.Constraint("Diameter", 0, Q("6 mm")),
    Sketcher.Constraint("DistanceX", -1, 1, 0, 3, Q("32 mm")),
    Sketcher.Constraint("DistanceY", -1, 1, 0, 3, Q("10 mm")),
    Sketcher.Constraint("DistanceX", -1, 1, 1, 3, Q("64 mm")),
])
pocket18 = body.newObject("PartDesign::Pocket", "Pocket017")
pocket18.Profile = sketch27
pocket18.Length = 4

doc.recompute()
